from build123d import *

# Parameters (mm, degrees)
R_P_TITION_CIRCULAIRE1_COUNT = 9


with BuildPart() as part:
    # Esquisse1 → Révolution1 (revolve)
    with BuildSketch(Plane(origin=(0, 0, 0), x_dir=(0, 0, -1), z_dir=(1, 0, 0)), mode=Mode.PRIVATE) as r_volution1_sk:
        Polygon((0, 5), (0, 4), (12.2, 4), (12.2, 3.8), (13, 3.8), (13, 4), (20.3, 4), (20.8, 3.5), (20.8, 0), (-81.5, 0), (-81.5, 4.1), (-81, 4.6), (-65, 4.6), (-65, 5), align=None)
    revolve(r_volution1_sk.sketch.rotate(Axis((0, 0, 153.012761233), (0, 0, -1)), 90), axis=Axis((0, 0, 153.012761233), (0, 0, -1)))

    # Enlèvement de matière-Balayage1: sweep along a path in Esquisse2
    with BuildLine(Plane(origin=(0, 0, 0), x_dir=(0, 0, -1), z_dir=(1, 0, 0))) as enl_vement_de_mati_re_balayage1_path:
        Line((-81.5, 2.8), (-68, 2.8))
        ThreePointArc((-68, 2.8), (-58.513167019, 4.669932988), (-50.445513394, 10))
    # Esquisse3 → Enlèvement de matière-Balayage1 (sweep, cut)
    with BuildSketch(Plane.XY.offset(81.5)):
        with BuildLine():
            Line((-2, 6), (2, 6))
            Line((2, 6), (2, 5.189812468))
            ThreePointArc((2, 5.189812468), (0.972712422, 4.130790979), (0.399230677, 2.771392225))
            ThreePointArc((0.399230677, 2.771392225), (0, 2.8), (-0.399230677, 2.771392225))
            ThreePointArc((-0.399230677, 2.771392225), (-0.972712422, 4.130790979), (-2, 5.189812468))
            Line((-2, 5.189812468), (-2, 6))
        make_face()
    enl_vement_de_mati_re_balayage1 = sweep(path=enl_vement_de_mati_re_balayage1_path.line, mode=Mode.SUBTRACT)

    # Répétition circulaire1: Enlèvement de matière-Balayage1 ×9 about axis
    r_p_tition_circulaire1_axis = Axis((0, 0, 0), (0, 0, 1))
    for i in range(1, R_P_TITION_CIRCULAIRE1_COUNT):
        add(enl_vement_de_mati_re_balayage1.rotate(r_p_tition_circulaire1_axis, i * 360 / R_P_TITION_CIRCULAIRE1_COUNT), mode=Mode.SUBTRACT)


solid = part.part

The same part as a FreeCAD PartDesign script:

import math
import FreeCAD as App
import Part
import Sketcher
Q = App.Units.Quantity

doc = App.newDocument("Part")
body = doc.addObject("PartDesign::Body", "Body")

# Sketch on YZ plane
sketch1 = body.newObject("Sketcher::SketchObject", "Sketch")
sketch1.AttachmentSupport = (doc.getObject("YZ_Plane"), [""])
sketch1.MapMode = "FlatFace"
sketch1.addGeometry([
    Part.LineSegment(App.Vector(4, 0, 0), App.Vector(5, 0, 0)),  # 0
    Part.LineSegment(App.Vector(5, 0, 0), App.Vector(5, 65, 0)),  # 1
    Part.LineSegment(App.Vector(5, 65, 0), App.Vector(4.6, 65, 0)),  # 2
    Part.LineSegment(App.Vector(4.6, 65, 0), App.Vector(4.6, 81, 0)),  # 3
    Part.LineSegment(App.Vector(4.6, 81, 0), App.Vector(4.1, 81.5, 0)),  # 4
    Part.LineSegment(App.Vector(4.1, 81.5, 0), App.Vector(0, 81.5, 0)),  # 5
    Part.LineSegment(App.Vector(0, 81.5, 0), App.Vector(0, -20.8, 0)),  # 6
    Part.LineSegment(App.Vector(0, -20.8, 0), App.Vector(3.5, -20.8, 0)),  # 7
    Part.LineSegment(App.Vector(3.5, -20.8, 0), App.Vector(4, -20.3, 0)),  # 8
    Part.LineSegment(App.Vector(4, -20.3, 0), App.Vector(4, -13, 0)),  # 9
    Part.LineSegment(App.Vector(4, -13, 0), App.Vector(3.8, -13, 0)),  # 10
    Part.LineSegment(App.Vector(3.8, -13, 0), App.Vector(3.8, -12.2, 0)),  # 11
    Part.LineSegment(App.Vector(3.8, -12.2, 0), App.Vector(4, -12.2, 0)),  # 12
    Part.LineSegment(App.Vector(4, -12.2, 0), App.Vector(4, 0, 0)),  # 13
], False)
sketch1.addConstraint([
    Sketcher.Constraint("Coincident", 0, 2, 1, 1),
    Sketcher.Constraint("Coincident", 1, 2, 2, 1),
    Sketcher.Constraint("Coincident", 2, 2, 3, 1),
    Sketcher.Constraint("Coincident", 3, 2, 4, 1),
    Sketcher.Constraint("Coincident", 4, 2, 5, 1),
    Sketcher.Constraint("Coincident", 5, 2, 6, 1),
    Sketcher.Constraint("Coincident", 6, 2, 7, 1),
    Sketcher.Constraint("Coincident", 7, 2, 8, 1),
    Sketcher.Constraint("Coincident", 8, 2, 9, 1),
    Sketcher.Constraint("Coincident", 9, 2, 10, 1),
    Sketcher.Constraint("Coincident", 10, 2, 11, 1),
    Sketcher.Constraint("Coincident", 11, 2, 12, 1),
    Sketcher.Constraint("Coincident", 12, 2, 13, 1),
    Sketcher.Constraint("Coincident", 13, 2, 0, 1),
    Sketcher.Constraint("Horizontal", 0),
    Sketcher.Constraint("Vertical", 1),
    Sketcher.Constraint("Horizontal", 2),
    Sketcher.Constraint("Vertical", 3),
    Sketcher.Constraint("Horizontal", 5),
    Sketcher.Constraint("Vertical", 6),
    Sketcher.Constraint("Horizontal", 7),
    Sketcher.Constraint("Vertical", 9),
    Sketcher.Constraint("Horizontal", 10),
    Sketcher.Constraint("Vertical", 11),
    Sketcher.Constraint("Horizontal", 12),
    Sketcher.Constraint("Vertical", 13),
    Sketcher.Constraint("PointOnObject", 0, 2, -1),
    Sketcher.Constraint("PointOnObject", 5, 2, -2),
    Sketcher.Constraint("Perpendicular", 4, 8),
    Sketcher.Constraint("Vertical", 9, 2, 12, 2),
    Sketcher.Constraint("Equal", 4, 8),
    Sketcher.Constraint("DistanceX", 0, 1, 0, 2, Q("1 mm")),
    Sketcher.Constraint("DistanceY", 1, 1, 1, 2, Q("65 mm")),
    Sketcher.Constraint("DistanceY", 3, 1, 3, 2, Q("16 mm")),
    Sketcher.Constraint("Angle", 4, Q("135 deg")),
    Sketcher.Constraint("DistanceX", 2, 2, 2, 1, Q("0.4 mm")),
    Sketcher.Constraint("DistanceX", 5, 2, 5, 1, Q("4.1 mm")),
    Sketcher.Constraint("DistanceX", 10, 2, 10, 1, Q("0.2 mm")),
    Sketcher.Constraint("DistanceY", 6, 2, 6, 1, Q("102.3 mm")),
    Sketcher.Constraint("DistanceY", 9, 1, 9, 2, Q("7.3 mm")),
    Sketcher.Constraint("DistanceY", 11, 1, 11, 2, Q("0.8 mm")),
    Sketcher.Constraint("DistanceY", 13, 1, 13, 2, Q("12.2 mm")),
])
revolution = body.newObject("PartDesign::Revolution", "Revolution")
revolution.Profile = sketch1
revolution.ReferenceAxis = (sketch1, ["V_Axis"])
revolution.Angle = 360

# Sketch on XY plane
sketch2 = body.newObject("Sketcher::SketchObject", "Sketch001")
sketch2.AttachmentSupport = (doc.getObject("XY_Plane"), [""])
sketch2.MapMode = "FlatFace"
sketch2.AttachmentOffset = App.Placement(App.Vector(0, 0, 81.5), App.Rotation())
sketch2.addGeometry([
    Part.LineSegment(App.Vector(2, 6, 0), App.Vector(-2, 6, 0)),  # 0
    Part.LineSegment(App.Vector(-2, 6, 0), App.Vector(-2, 5.2, 0)),  # 1
    Part.ArcOfCircle(Part.Circle(App.Vector(-4.3, 1.9, 0), App.Vector(0, 0, 1), 4), math.radians(12), math.radians(55)),  # 2
    Part.ArcOfCircle(Part.Circle(App.Vector(0, 0, 0), App.Vector(0, 0, 1), 2.8), math.radians(81.8), math.radians(98.2)),  # 3
    Part.ArcOfCircle(Part.Circle(App.Vector(4.3, 1.9, 0), App.Vector(0, 0, 1), 4), math.radians(125), math.radians(168)),  # 4
    Part.LineSegment(App.Vector(2, 5.2, 0), App.Vector(2, 6, 0)),  # 5
], False)
sketch2.addConstraint([
    Sketcher.Constraint("Coincident", 0, 2, 1, 1),
    Sketcher.Constraint("Coincident", 1, 2, 2, 2),
    Sketcher.Constraint("Coincident", 2, 1, 3, 2),
    Sketcher.Constraint("Coincident", 3, 1, 4, 2),
    Sketcher.Constraint("Coincident", 4, 1, 5, 1),
    Sketcher.Constraint("Coincident", 5, 2, 0, 1),
    Sketcher.Constraint("Horizontal", 0),
    Sketcher.Constraint("Vertical", 1),
    Sketcher.Constraint("Vertical", 5),
    Sketcher.Constraint("Coincident", 3, 3, -1, 1),
    Sketcher.Constraint("Equal", 2, 4),
    Sketcher.Constraint("Symmetric", 2, 3, 4, 3, -2),
    Sketcher.Constraint("Horizontal", 1, 2, 4, 1),
    Sketcher.Constraint("Radius", 2, Q("4 mm")),
    Sketcher.Constraint("Radius", 3, Q("2.8 mm")),
    Sketcher.Constraint("DistanceX", 0, 2, 0, 1, Q("4 mm")),
    Sketcher.Constraint("DistanceY", -1, 1, 0, 2, Q("6 mm")),
    Sketcher.Constraint("DistanceY", 2, 3, 2, 1, Q("0.848399 mm")),
    Sketcher.Constraint("DistanceY", 1, 2, 1, 1, Q("0.810188 mm")),
])

# Sketch on YZ plane
sketch3 = body.newObject("Sketcher::SketchObject", "Sketch002")
sketch3.AttachmentSupport = (doc.getObject("YZ_Plane"), [""])
sketch3.MapMode = "FlatFace"
sketch3.addGeometry([
    Part.LineSegment(App.Vector(3, 82, 0), App.Vector(3, 68, 0)),
    Part.ArcOfCircle(Part.Circle(App.Vector(28, 68, 0), App.Vector(0, 0, 1), 25), math.radians(-180), math.radians(-135)),
], False)
sketch3.addConstraint([
    Sketcher.Constraint("Tangent", 0, 2, 1, 1),
    Sketcher.Constraint("Vertical", 0),
    Sketcher.Constraint("Radius", 1, Q("25 mm")),
    Sketcher.Constraint("DistanceY", 0, 2, 0, 1, Q("13.5 mm")),
    Sketcher.Constraint("DistanceY", -1, 1, 1, 3, Q("68 mm")),
    Sketcher.Constraint("DistanceX", -1, 1, 1, 2, Q("10 mm")),
    Sketcher.Constraint("DistanceX", -1, 1, 1, 3, Q("27.8 mm")),
])
doc.recompute()

subtractivepipe = body.newObject("PartDesign::SubtractivePipe", "SubtractivePipe")
subtractivepipe.Profile = sketch2
subtractivepipe.Spine = (sketch3, ["Edge1", "Edge2"])
doc.recompute()

polarpattern = body.newObject("PartDesign::PolarPattern", "PolarPattern")
polarpattern.Originals = [subtractivepipe]
polarpattern.Axis = (doc.getObject("Z_Axis"), [""])
polarpattern.Angle = 360
polarpattern.Occurrences = 9
body.Tip = polarpattern

doc.recompute()
